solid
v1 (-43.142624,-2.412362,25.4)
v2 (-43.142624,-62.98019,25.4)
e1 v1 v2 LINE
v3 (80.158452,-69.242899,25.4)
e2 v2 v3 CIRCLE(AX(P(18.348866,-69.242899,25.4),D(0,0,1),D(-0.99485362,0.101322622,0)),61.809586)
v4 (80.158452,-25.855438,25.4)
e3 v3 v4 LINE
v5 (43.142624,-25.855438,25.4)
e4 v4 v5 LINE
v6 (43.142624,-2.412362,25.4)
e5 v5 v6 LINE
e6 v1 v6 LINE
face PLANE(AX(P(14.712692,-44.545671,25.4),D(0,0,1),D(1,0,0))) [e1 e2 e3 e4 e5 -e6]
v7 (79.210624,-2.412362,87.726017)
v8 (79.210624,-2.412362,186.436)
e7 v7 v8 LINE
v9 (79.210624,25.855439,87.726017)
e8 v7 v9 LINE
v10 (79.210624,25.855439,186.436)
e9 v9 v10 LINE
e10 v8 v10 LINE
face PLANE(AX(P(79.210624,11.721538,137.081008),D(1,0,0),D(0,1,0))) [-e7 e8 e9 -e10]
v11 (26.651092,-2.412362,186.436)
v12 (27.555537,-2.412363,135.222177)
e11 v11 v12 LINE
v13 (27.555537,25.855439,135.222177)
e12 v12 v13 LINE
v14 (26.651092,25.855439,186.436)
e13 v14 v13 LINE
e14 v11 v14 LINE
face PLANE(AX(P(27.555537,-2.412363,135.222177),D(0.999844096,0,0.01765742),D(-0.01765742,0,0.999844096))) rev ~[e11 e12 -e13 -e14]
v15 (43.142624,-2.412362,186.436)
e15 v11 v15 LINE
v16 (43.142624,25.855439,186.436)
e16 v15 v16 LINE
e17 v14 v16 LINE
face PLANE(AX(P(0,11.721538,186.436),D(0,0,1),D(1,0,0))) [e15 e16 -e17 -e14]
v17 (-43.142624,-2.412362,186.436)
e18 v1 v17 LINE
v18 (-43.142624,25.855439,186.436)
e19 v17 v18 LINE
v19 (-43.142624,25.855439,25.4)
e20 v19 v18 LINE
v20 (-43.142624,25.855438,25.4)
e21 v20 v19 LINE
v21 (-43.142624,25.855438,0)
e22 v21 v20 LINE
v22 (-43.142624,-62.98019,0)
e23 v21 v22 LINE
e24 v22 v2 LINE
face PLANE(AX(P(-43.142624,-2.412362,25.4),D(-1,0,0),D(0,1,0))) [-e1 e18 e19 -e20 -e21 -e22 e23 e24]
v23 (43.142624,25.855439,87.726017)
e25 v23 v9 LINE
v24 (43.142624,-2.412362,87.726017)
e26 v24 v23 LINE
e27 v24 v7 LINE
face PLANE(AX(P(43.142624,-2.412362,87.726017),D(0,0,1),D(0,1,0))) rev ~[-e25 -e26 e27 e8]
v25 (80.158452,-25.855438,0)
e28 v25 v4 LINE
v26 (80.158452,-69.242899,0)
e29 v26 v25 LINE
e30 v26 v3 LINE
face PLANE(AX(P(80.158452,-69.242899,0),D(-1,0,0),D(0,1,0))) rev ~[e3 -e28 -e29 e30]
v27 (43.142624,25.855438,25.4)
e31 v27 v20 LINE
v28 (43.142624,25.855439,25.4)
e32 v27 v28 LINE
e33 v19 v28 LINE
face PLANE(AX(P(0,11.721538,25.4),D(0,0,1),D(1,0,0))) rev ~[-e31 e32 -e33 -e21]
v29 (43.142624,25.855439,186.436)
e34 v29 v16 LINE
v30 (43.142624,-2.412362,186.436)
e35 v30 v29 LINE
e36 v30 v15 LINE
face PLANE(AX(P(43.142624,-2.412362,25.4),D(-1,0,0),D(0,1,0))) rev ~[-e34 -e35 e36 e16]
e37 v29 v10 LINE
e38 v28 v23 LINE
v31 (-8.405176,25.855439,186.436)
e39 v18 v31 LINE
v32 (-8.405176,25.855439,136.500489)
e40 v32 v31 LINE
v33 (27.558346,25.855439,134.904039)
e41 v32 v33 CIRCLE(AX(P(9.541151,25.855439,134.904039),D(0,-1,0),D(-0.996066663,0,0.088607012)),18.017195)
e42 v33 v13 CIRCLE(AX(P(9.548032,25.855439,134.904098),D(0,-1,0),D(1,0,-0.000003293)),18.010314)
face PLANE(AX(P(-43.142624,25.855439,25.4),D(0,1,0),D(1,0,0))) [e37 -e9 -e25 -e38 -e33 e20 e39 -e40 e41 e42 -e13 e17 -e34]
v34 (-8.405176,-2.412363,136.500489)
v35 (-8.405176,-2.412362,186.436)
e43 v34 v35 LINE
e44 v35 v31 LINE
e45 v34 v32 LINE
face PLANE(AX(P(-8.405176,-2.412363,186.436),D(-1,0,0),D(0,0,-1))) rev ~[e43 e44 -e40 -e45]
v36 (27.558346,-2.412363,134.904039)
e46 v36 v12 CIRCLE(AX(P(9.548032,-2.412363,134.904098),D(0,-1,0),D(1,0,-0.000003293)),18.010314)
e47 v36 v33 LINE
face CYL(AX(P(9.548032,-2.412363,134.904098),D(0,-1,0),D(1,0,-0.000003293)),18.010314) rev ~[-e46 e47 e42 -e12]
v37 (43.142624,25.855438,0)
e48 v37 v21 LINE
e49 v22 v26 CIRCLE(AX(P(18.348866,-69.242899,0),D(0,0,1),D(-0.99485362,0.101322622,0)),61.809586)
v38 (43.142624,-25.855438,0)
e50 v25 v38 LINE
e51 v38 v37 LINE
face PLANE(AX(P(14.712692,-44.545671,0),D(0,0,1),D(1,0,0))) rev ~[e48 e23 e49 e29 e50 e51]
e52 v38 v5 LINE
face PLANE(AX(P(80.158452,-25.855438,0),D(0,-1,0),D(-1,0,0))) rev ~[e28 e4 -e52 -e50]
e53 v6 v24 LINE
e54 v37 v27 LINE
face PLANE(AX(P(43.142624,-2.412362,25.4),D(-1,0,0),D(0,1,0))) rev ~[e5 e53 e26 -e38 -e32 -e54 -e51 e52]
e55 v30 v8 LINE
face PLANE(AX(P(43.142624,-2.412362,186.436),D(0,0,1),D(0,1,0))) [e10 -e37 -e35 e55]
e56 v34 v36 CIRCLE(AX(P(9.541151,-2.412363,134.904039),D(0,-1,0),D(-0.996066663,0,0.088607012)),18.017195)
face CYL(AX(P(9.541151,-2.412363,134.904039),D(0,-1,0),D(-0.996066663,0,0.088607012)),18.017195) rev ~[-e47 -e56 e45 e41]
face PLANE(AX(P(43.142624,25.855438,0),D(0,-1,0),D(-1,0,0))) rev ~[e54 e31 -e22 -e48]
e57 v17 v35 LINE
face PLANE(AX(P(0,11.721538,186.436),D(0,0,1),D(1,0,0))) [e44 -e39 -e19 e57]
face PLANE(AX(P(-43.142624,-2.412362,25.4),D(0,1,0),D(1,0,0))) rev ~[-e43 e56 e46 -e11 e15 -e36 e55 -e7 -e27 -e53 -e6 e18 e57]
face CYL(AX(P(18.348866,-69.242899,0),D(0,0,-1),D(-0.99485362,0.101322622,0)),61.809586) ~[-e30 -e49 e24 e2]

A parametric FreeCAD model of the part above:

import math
import FreeCAD as App
import Part
import Sketcher
from FreeCAD import Vector
Q = App.Units.Quantity


def add_polygon(sketch, points):
    """Adds a closed chain of lines whose ends are joined by coincident constraints."""
    first, n = sketch.GeometryCount, len(points)
    for a, b in zip(points, points[1:] + points[:1]):
        sketch.addGeometry(Part.LineSegment(App.Vector(*a, 0), App.Vector(*b, 0)), False)
    for i in range(n):
        sketch.addConstraint(Sketcher.Constraint("Coincident", first + i, 2, first + (i + 1) % n, 1))

doc = App.newDocument("Part")
body = doc.addObject("PartDesign::Body", "Body")

sketch1 = body.newObject("Sketcher::SketchObject", "Sketch")
sketch1.AttachmentSupport = (doc.getObject("XY_Plane"), [""])
sketch1.MapMode = "FlatFace"
sketch1.addGeometry(Part.LineSegment(Vector(43, -26, 0), Vector(43, 26, 0)), False)
sketch1.addGeometry(Part.LineSegment(Vector(43, 26, 0), Vector(-43, 26, 0)), False)
sketch1.addGeometry(Part.LineSegment(Vector(-43, 26, 0), Vector(-43, -63, 0)), False)
sketch1.addGeometry(Part.ArcOfCircle(Part.Circle(Vector(18, -69, 0), Vector(0, 0, 1), 62), math.radians(174), math.radians(360)), False)
sketch1.addGeometry(Part.LineSegment(Vector(80, -69, 0), Vector(80, -26, 0)), False)
sketch1.addGeometry(Part.LineSegment(Vector(80, -26, 0), Vector(43, -26, 0)), False)
sketch1.addConstraint(Sketcher.Constraint("Coincident", 0, 2, 1, 1))
sketch1.addConstraint(Sketcher.Constraint("Coincident", 1, 2, 2, 1))
sketch1.addConstraint(Sketcher.Constraint("Coincident", 2, 2, 3, 1))
sketch1.addConstraint(Sketcher.Constraint("Tangent", 3, 2, 4, 1))
sketch1.addConstraint(Sketcher.Constraint("Coincident", 4, 2, 5, 1))
sketch1.addConstraint(Sketcher.Constraint("Coincident", 5, 2, 0, 1))
sketch1.addConstraint(Sketcher.Constraint("Vertical", 0))
sketch1.addConstraint(Sketcher.Constraint("Horizontal", 1))
sketch1.addConstraint(Sketcher.Constraint("Vertical", 2))
sketch1.addConstraint(Sketcher.Constraint("Vertical", 4))
sketch1.addConstraint(Sketcher.Constraint("Horizontal", 5))
sketch1.addConstraint(Sketcher.Constraint("Symmetric", 1, 2, 5, 2, -1, 1))
sketch1.addConstraint(Sketcher.Constraint("Radius", 3, 61.809586))
sketch1.addConstraint(Sketcher.Constraint("DistanceY", 2, 2, 2, 1, 88.835628))
sketch1.addConstraint(Sketcher.Constraint("DistanceY", 4, 1, 4, 2, 43.387461))
sketch1.addConstraint(Sketcher.Constraint("DistanceY", 3, 3, -1, 1, 69.242899))
sketch1.addConstraint(Sketcher.Constraint("DistanceX", 1, 2, 1, 1, 86.285248))
pad1 = body.newObject("PartDesign::Pad", "Pad")
pad1.Profile = sketch1
pad1.Length = Q("1 in")

sketch2 = body.newObject("Sketcher::SketchObject", "Sketch001")
sketch2.AttachmentSupport = (doc.getObject("XY_Plane"), [""])
sketch2.MapMode = "FlatFace"
sketch2.AttachmentOffset = App.Placement(Vector(0, 0, 1 * 25.4), App.Rotation())
add_polygon(sketch2, [(-43, 26), (-43, -2), (43, -2), (43, 26)])
sketch2.addConstraint(Sketcher.Constraint("Vertical", 0))
sketch2.addConstraint(Sketcher.Constraint("Horizontal", 1))
sketch2.addConstraint(Sketcher.Constraint("Vertical", 2))
sketch2.addConstraint(Sketcher.Constraint("Horizontal", 3))
sketch2.addConstraint(Sketcher.Constraint("DistanceY", 0, 2, 0, 1, 28.267801))
sketch2.addConstraint(Sketcher.Constraint("DistanceX", 1, 1, 1, 2, 86.285248))
sketch2.addConstraint(Sketcher.Constraint("DistanceY", -1, 1, 2, 2, 25.855439))
sketch2.addConstraint(Sketcher.Constraint("DistanceX", 0, 2, -1, 1, 43.142624))
pad2 = body.newObject("PartDesign::Pad", "Pad001")
pad2.Profile = sketch2
pad2.Length = Q("6.34 in")

sketch3 = body.newObject("Sketcher::SketchObject", "Sketch002")
sketch3.AttachmentSupport = (doc.getObject("YZ_Plane"), [""])
sketch3.MapMode = "FlatFace"
sketch3.AttachmentOffset = App.Placement(Vector(0, 0, 43.142624), App.Rotation())
add_polygon(sketch3, [(-2, 186), (-2, 88), (26, 88), (26, 186)])
sketch3.addConstraint(Sketcher.Constraint("Vertical", 0))
sketch3.addConstraint(Sketcher.Constraint("Horizontal", 1))
sketch3.addConstraint(Sketcher.Constraint("Vertical", 2))
sketch3.addConstraint(Sketcher.Constraint("Horizontal", 3))
sketch3.addConstraint(Sketcher.Constraint("DistanceY", -1, 1, 2, 2, Q("7.34 in")))
sketch3.addConstraint(Sketcher.Constraint("DistanceX", 1, 1, 1, 2, 28.267801))
sketch3.addConstraint(Sketcher.Constraint("DistanceY", 0, 2, 0, 1, 98.709983))
sketch3.addConstraint(Sketcher.Constraint("DistanceX", -1, 1, 1, 2, 25.855439))
pad3 = body.newObject("PartDesign::Pad", "Pad002")
pad3.Profile = sketch3
pad3.Length = Q("1.42 in")

sketch4 = body.newObject("Sketcher::SketchObject", "Sketch003")
sketch4.AttachmentSupport = (doc.getObject("XZ_Plane"), [""])
sketch4.MapMode = "FlatFace"
sketch4.AttachmentOffset = App.Placement(Vector(0, 0, 2.412363), App.Rotation())
sketch4.addGeometry(Part.ArcOfCircle(Part.Circle(Vector(9.54, 134.9, 0), Vector(0, 0, 1), 18.02), math.radians(175), math.radians(360)), False)
sketch4.addGeometry(Part.ArcOfCircle(Part.Circle(Vector(9.55, 134.9, 0), Vector(0, 0, 1), 18.01), math.radians(0), math.radians(1.01)), False)
sketch4.addGeometry(Part.LineSegment(Vector(27.56, 135.22, 0), Vector(26.65, 186.44, 0)), False)
sketch4.addGeometry(Part.LineSegment(Vector(26.65, 186.44, 0), Vector(-8.41, 186.44, 0)), False)
sketch4.addGeometry(Part.LineSegment(Vector(-8.41, 186.44, 0), Vector(-8.41, 136.5, 0)), False)
sketch4.addConstraint(Sketcher.Constraint("Coincident", 0, 2, 1, 1))
sketch4.addConstraint(Sketcher.Constraint("Coincident", 1, 2, 2, 1))
sketch4.addConstraint(Sketcher.Constraint("Coincident", 2, 2, 3, 1))
sketch4.addConstraint(Sketcher.Constraint("Coincident", 3, 2, 4, 1))
sketch4.addConstraint(Sketcher.Constraint("Coincident", 4, 2, 0, 1))
sketch4.addConstraint(Sketcher.Constraint("Horizontal", 3))
sketch4.addConstraint(Sketcher.Constraint("Vertical", 4))
sketch4.addConstraint(Sketcher.Constraint("DistanceY", -1, 1, 2, 2, Q("7.34 in")))
sketch4.addConstraint(Sketcher.Constraint("Radius", 0, 18.017195))
sketch4.addConstraint(Sketcher.Constraint("Radius", 1, 18.010314))
sketch4.addConstraint(Sketcher.Constraint("DistanceX", 3, 2, 3, 1, 35.056268))
sketch4.addConstraint(Sketcher.Constraint("DistanceY", 4, 2, 4, 1, 49.935511))
sketch4.addConstraint(Sketcher.Constraint("DistanceY", -1, 1, 1, 3, 134.904098))
sketch4.addConstraint(Sketcher.Constraint("Distance", 2, 51.221809))
sketch4.addConstraint(Sketcher.Constraint("DistanceX", -1, 1, 0, 3, 9.541151))
sketch4.addConstraint(Sketcher.Constraint("DistanceY", -1, 1, 0, 3, 134.904039))
sketch4.addConstraint(Sketcher.Constraint("DistanceY", -1, 1, 0, 2, 134.904039))
pocket1 = body.newObject("PartDesign::Pocket", "Pocket")
pocket1.Profile = sketch4
pocket1.Length = Q("2.62 in")

doc.recompute()
